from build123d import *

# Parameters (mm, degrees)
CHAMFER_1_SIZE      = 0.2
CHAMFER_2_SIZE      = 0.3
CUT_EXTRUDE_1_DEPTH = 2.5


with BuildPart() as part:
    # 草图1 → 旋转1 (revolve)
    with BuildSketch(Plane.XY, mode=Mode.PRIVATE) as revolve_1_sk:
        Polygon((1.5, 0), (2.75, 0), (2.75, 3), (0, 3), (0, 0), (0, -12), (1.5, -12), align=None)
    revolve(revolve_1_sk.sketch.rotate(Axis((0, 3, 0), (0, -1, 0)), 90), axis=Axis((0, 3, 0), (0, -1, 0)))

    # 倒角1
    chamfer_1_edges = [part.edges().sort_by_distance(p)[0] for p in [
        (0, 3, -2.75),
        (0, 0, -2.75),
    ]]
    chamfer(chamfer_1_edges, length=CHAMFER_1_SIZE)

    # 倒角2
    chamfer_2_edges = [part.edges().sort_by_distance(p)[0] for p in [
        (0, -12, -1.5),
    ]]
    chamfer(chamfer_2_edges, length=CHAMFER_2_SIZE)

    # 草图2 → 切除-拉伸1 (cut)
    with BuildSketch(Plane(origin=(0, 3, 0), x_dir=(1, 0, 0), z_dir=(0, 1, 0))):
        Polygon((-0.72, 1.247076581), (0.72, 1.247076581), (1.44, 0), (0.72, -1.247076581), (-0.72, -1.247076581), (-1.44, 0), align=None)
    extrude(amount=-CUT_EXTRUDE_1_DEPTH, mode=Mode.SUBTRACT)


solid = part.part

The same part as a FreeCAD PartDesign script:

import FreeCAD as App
import Part
import Sketcher

V = App.Vector
Q = App.Units.Quantity


def edges_at(feature, points):
    """Names of the edges that pass closest to the given points."""
    edges = feature.Shape.Edges
    near = lambda p: min(range(len(edges)), key=lambda i: edges[i].distToShape(Part.Vertex(*p))[0])
    return sorted({f"Edge{near(p) + 1}" for p in points})


def add_polygon(sketch, points):
    """Adds a closed chain of lines whose ends are joined by coincident constraints."""
    first, n = sketch.GeometryCount, len(points)
    for a, b in zip(points, points[1:] + points[:1]):
        sketch.addGeometry(Part.LineSegment(App.Vector(*a, 0), App.Vector(*b, 0)), False)
    for i in range(n):
        sketch.addConstraint(Sketcher.Constraint("Coincident", first + i, 2, first + (i + 1) % n, 1))

doc = App.newDocument("Part")
params = doc.addObject("Spreadsheet::Sheet", "Params")
for row, (alias, value) in enumerate([
    ("sketch1_height", "3 mm"),
    ("sketch1_height2", "15 mm"),
    ("sketch1_width", "1.5 mm"),
    ("sketch1_width2", "1.25 mm"),
    ("revolution_angle", "360 deg"),
    ("chamfer_size", "0.2 mm"),
    ("chamfer2_size", "0.3 mm"),
    ("sketch2_width", "1.44 mm"),
    ("sketch2_length", "1.44 mm"),
    ("pocket1_length", "2.5 mm"),
], start=1):
    params.set(f"A{row}", alias)
    params.set(f"B{row}", "=" + value)
    params.setAlias(f"B{row}", alias)

body = doc.addObject("PartDesign::Body", "Body")

# Sketch on XY plane
sketch1 = doc.addObject("Sketcher::SketchObject", "Sketch")
body.addObject(sketch1)
sketch1.AttachmentSupport = (doc.XY_Plane, [""])
sketch1.MapMode = "FlatFace"
add_polygon(sketch1, [(1.5, 0), (2.8, 0), (2.8, 3), (0, 3), (0, -12), (1.5, -12)])  # lines 0-5
sketch1.addConstraint([
    Sketcher.Constraint("Horizontal", 0),
    Sketcher.Constraint("Vertical", 1),
    Sketcher.Constraint("Horizontal", 2),
    Sketcher.Constraint("Vertical", 3),
    Sketcher.Constraint("Horizontal", 4),
    Sketcher.Constraint("Vertical", 5),
    Sketcher.Constraint("PointOnObject", 0, 2, -1),
    Sketcher.Constraint("PointOnObject", 2, 2, -2),
    Sketcher.Constraint("DistanceY", 1, 1, 1, 2, 3.0),
    Sketcher.Constraint("DistanceY", 3, 2, 3, 1, 15.0),
    Sketcher.Constraint("DistanceX", 4, 1, 4, 2, 1.5),
    Sketcher.Constraint("DistanceX", 0, 1, 0, 2, 1.25),
])
sketch1.setExpression("Constraints[14]", "Params.sketch1_height")
sketch1.setExpression("Constraints[15]", "Params.sketch1_height2")
sketch1.setExpression("Constraints[16]", "Params.sketch1_width")
sketch1.setExpression("Constraints[17]", "Params.sketch1_width2")
revolution = doc.addObject("PartDesign::Revolution", "Revolution")
body.addObject(revolution)
revolution.Profile = sketch1
revolution.ReferenceAxis = (sketch1, ["V_Axis"])
revolution.setExpression("Angle", "Params.revolution_angle")
doc.recompute()

chamfer = doc.addObject("PartDesign::Chamfer", "Chamfer")
body.addObject(chamfer)
chamfer.Base = (revolution, edges_at(revolution, [(0, 3, -2.75), (0, 0, -2.75)]))
chamfer.setExpression("Size", "Params.chamfer_size")
doc.recompute()

chamfer2 = doc.addObject("PartDesign::Chamfer", "Chamfer001")
body.addObject(chamfer2)
chamfer2.Base = (chamfer, edges_at(chamfer, [(0, -12, -1.5)]))
chamfer2.setExpression("Size", "Params.chamfer2_size")

# Sketch on XZ plane
sketch2 = doc.addObject("Sketcher::SketchObject", "Sketch001")
body.addObject(sketch2)
sketch2.AttachmentSupport = (doc.XZ_Plane, [""])
sketch2.MapMode = "FlatFace"
sketch2.AttachmentOffset = App.Placement(V(0, 0, -3), App.Rotation())
add_polygon(sketch2, [(0.7, -1.2), (-0.7, -1.2), (-1.4, 0), (-0.7, 1.2), (0.7, 1.2), (1.4, 0)])  # lines 0-5
sketch2.addConstraint([
    Sketcher.Constraint("Horizontal", 0),
    Sketcher.Constraint("Horizontal", 3),
    Sketcher.Constraint("Symmetric", 0, 2, 3, 2, -1, 1),
    Sketcher.Constraint("Symmetric", 1, 2, 4, 2, -1, 1),
    Sketcher.Constraint("PointOnObject", 1, 2, -1),
    Sketcher.Constraint("Parallel", 2, 5),
    Sketcher.Constraint("Vertical", 0, 2, 2, 2),
    Sketcher.Constraint("Angle", 1, Q("120 deg")),
    Sketcher.Constraint("DistanceX", 0, 2, 0, 1, 1.44),
    Sketcher.Constraint("Distance", 1, 1.44),
])
sketch2.setExpression("Constraints[14]", "Params.sketch2_width")
sketch2.setExpression("Constraints[15]", "Params.sketch2_length")
pocket1 = doc.addObject("PartDesign::Pocket", "Pocket")
body.addObject(pocket1)
pocket1.Profile = sketch2
pocket1.setExpression("Length", "Params.pocket1_length")
pocket1.Reversed = True

doc.recompute()
